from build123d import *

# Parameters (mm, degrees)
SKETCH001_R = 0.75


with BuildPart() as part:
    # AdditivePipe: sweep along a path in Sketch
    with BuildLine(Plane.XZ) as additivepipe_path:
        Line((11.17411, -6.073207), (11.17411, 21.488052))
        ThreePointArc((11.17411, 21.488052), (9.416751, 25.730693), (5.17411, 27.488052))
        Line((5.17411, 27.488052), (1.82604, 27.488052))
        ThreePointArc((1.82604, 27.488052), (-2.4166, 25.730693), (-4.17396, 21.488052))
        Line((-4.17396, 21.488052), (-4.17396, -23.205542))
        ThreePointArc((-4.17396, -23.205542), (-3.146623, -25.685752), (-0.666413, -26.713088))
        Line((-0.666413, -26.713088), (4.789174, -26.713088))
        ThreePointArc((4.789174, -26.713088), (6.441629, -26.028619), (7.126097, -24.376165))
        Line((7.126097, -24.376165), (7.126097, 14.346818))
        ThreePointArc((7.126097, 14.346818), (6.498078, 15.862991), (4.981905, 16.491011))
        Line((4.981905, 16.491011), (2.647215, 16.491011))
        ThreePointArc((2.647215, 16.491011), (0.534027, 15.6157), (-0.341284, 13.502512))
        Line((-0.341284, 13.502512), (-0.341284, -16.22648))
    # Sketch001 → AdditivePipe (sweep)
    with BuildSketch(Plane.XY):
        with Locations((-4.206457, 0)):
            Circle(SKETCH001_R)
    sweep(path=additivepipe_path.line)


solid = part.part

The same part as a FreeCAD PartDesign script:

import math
import FreeCAD as App
import Part
import Sketcher

doc = App.newDocument("Part")
body = doc.addObject("PartDesign::Body", "Body")

# Sketch on XY plane
sketch1 = body.newObject("Sketcher::SketchObject", "Sketch")
sketch1.AttachmentSupport = (doc.getObject("XY_Plane"), [""])
sketch1.MapMode = "FlatFace"
sketch1.addGeometry(Part.Circle(App.Vector(-4.206457, 0, 0), App.Vector(0, 0, 1), 0.75), False)
sketch1.addConstraint([
    Sketcher.Constraint("PointOnObject", 0, 3, -1),
    Sketcher.Constraint("Diameter", 0, 1.5),
    Sketcher.Constraint("DistanceX", 0, 3, -1, 1, 4.206457),
])

# Sketch on XZ plane
sketch2 = body.newObject("Sketcher::SketchObject", "Sketch001")
sketch2.AttachmentSupport = (doc.getObject("XZ_Plane"), [""])
sketch2.MapMode = "FlatFace"
sketch2.addGeometry([
    Part.LineSegment(App.Vector(11.17411, -6.073207, 0), App.Vector(11.17411, 21.488052, 0)),  # 0
    Part.ArcOfCircle(Part.Circle(App.Vector(5.174111, 21.488053, 0), App.Vector(0, 0, 1), 5.999999), math.radians(-0.00001), math.radians(90.00001)),  # 1
    Part.LineSegment(App.Vector(5.17411, 27.488052, 0), App.Vector(1.82604, 27.488052, 0)),  # 2
    Part.ArcOfCircle(Part.Circle(App.Vector(1.826041, 21.488051, 0), App.Vector(0, 0, 1), 6.000001), math.radians(90.000006), math.radians(179.999994)),  # 3
    Part.LineSegment(App.Vector(-4.17396, 21.488052, 0), App.Vector(-4.17396, -23.205542, 0)),  # 4
    Part.ArcOfCircle(Part.Circle(App.Vector(-0.666414, -23.205542, 0), App.Vector(0, 0, 1), 3.507546), math.radians(-179.999997), math.radians(-89.999987)),  # 5
    Part.LineSegment(App.Vector(-0.666413, -26.713088, 0), App.Vector(4.789174, -26.713088, 0)),  # 6
    Part.ArcOfCircle(Part.Circle(App.Vector(4.789175, -24.376166, 0), App.Vector(0, 0, 1), 2.336922), math.radians(-90.000033), math.radians(0.000033)),  # 7
    Part.LineSegment(App.Vector(7.126097, -24.376165, 0), App.Vector(7.126097, 14.346818, 0)),  # 8
    Part.ArcOfCircle(Part.Circle(App.Vector(4.981904, 14.346818, 0), App.Vector(0, 0, 1), 2.144193), math.radians(-0.000008), math.radians(89.999981)),  # 9
    Part.LineSegment(App.Vector(4.981905, 16.491011, 0), App.Vector(2.647215, 16.491011, 0)),  # 10
    Part.ArcOfCircle(Part.Circle(App.Vector(2.647215, 13.502512, 0), App.Vector(0, 0, 1), 2.988499), math.radians(89.999994), math.radians(180.000006)),  # 11
    Part.LineSegment(App.Vector(-0.341284, 13.502512, 0), App.Vector(-0.341284, -16.22648, 0)),  # 12
], False)
sketch2.addConstraint([
    Sketcher.Constraint("Tangent", 0, 2, 1, 1),
    Sketcher.Constraint("Tangent", 1, 2, 2, 1),
    Sketcher.Constraint("Tangent", 2, 2, 3, 1),
    Sketcher.Constraint("Tangent", 3, 2, 4, 1),
    Sketcher.Constraint("Tangent", 4, 2, 5, 1),
    Sketcher.Constraint("Tangent", 5, 2, 6, 1),
    Sketcher.Constraint("Tangent", 6, 2, 7, 1),
    Sketcher.Constraint("Tangent", 7, 2, 8, 1),
    Sketcher.Constraint("Tangent", 8, 2, 9, 1),
    Sketcher.Constraint("Tangent", 9, 2, 10, 1),
    Sketcher.Constraint("Tangent", 10, 2, 11, 1),
    Sketcher.Constraint("Tangent", 11, 2, 12, 1),
    Sketcher.Constraint("Vertical", 0),
    Sketcher.Constraint("Horizontal", 2),
    Sketcher.Constraint("Vertical", 4),
    Sketcher.Constraint("Horizontal", 6),
    Sketcher.Constraint("Vertical", 8),
    Sketcher.Constraint("Horizontal", 10),
    Sketcher.Constraint("Vertical", 12),
    Sketcher.Constraint("Equal", 1, 3),
    Sketcher.Constraint("Radius", 1, 5.999999),
    Sketcher.Constraint("Radius", 11, 2.988499),
    Sketcher.Constraint("Radius", 7, 2.336922),
    Sketcher.Constraint("Radius", 5, 3.507546),
    Sketcher.Constraint("Radius", 9, 2.144193),
    Sketcher.Constraint("DistanceX", 2, 2, 2, 1, 3.34807),
    Sketcher.Constraint("DistanceX", 10, 2, 10, 1, 2.33469),
    Sketcher.Constraint("DistanceY", 0, 1, 0, 2, 27.561259),
    Sketcher.Constraint("DistanceY", 12, 2, 12, 1, 29.728992),
    Sketcher.Constraint("DistanceY", 5, 2, 11, 3, 40.2156),
    Sketcher.Constraint("DistanceX", 6, 1, 6, 2, 5.455587),
    Sketcher.Constraint("DistanceY", 4, 2, 4, 1, 44.693594),
    Sketcher.Constraint("DistanceX", -1, 1, 1, 3, 5.174111),
    Sketcher.Constraint("DistanceY", -1, 1, 3, 3, 21.488051),
])
doc.recompute()

additivepipe = body.newObject("PartDesign::AdditivePipe", "AdditivePipe")
additivepipe.Profile = sketch1
additivepipe.Spine = (sketch2, ["Edge1", "Edge2", "Edge3", "Edge4", "Edge5", "Edge6", "Edge7", "Edge8", "Edge9", "Edge10", "Edge11", "Edge12", "Edge13"])

doc.recompute()
